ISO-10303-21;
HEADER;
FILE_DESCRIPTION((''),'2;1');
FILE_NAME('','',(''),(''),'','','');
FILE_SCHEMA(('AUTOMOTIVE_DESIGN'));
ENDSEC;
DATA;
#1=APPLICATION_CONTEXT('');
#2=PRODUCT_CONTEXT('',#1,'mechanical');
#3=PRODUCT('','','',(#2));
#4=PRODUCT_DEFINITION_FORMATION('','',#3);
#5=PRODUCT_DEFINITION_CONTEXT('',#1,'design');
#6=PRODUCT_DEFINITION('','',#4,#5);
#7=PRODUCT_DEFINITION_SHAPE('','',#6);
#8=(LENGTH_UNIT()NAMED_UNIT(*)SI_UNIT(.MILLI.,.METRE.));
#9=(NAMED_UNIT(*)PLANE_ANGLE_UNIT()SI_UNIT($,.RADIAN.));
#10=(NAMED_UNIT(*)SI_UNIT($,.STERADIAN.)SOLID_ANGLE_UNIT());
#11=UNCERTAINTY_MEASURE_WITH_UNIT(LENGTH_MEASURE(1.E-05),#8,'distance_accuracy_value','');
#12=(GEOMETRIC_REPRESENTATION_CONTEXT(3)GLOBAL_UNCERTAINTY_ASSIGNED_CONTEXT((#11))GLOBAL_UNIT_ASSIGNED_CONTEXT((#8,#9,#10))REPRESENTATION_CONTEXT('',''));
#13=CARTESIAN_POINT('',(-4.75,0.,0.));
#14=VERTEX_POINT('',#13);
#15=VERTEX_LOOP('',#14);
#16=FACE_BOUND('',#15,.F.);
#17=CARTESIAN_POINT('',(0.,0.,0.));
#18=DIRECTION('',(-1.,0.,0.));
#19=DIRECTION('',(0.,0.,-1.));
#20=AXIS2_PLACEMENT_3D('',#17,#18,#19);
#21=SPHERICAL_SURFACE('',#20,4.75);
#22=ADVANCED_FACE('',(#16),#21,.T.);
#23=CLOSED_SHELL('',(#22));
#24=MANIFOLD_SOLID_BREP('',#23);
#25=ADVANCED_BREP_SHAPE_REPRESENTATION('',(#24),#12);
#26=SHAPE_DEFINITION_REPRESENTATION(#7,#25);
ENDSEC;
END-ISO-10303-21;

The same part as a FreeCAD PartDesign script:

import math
import FreeCAD as App
import Part
import Sketcher
Q = App.Units.Quantity

doc = App.newDocument("Part")
body = doc.addObject("PartDesign::Body", "Body")

sketch1 = body.newObject("Sketcher::SketchObject", "Sketch")
sketch1.AttachmentSupport = (doc.getObject("XZ_Plane"), [""])
sketch1.MapMode = "FlatFace"
sketch1.addGeometry([
    Part.ArcOfCircle(Part.Circle(App.Vector(0, 0, 0), App.Vector(0, 0, 1), 4.8), math.radians(180), math.radians(360)),
    Part.LineSegment(App.Vector(-4.8, 0, 0), App.Vector(4.8, 0, 0)),
], False)
sketch1.addConstraint([
    Sketcher.Constraint("Coincident", 0, 1, 1, 1),
    Sketcher.Constraint("Coincident", 1, 2, 0, 2),
    Sketcher.Constraint("Horizontal", 1),
    Sketcher.Constraint("Coincident", 0, 3, -1, 1),
    Sketcher.Constraint("PointOnObject", 0, 1, -1),
    Sketcher.Constraint("Radius", 0, Q("4.75 mm")),
])
revolution = body.newObject("PartDesign::Revolution", "Revolution")
revolution.Profile = sketch1
revolution.ReferenceAxis = (sketch1, ["H_Axis"])
revolution.Angle = 360

doc.recompute()
